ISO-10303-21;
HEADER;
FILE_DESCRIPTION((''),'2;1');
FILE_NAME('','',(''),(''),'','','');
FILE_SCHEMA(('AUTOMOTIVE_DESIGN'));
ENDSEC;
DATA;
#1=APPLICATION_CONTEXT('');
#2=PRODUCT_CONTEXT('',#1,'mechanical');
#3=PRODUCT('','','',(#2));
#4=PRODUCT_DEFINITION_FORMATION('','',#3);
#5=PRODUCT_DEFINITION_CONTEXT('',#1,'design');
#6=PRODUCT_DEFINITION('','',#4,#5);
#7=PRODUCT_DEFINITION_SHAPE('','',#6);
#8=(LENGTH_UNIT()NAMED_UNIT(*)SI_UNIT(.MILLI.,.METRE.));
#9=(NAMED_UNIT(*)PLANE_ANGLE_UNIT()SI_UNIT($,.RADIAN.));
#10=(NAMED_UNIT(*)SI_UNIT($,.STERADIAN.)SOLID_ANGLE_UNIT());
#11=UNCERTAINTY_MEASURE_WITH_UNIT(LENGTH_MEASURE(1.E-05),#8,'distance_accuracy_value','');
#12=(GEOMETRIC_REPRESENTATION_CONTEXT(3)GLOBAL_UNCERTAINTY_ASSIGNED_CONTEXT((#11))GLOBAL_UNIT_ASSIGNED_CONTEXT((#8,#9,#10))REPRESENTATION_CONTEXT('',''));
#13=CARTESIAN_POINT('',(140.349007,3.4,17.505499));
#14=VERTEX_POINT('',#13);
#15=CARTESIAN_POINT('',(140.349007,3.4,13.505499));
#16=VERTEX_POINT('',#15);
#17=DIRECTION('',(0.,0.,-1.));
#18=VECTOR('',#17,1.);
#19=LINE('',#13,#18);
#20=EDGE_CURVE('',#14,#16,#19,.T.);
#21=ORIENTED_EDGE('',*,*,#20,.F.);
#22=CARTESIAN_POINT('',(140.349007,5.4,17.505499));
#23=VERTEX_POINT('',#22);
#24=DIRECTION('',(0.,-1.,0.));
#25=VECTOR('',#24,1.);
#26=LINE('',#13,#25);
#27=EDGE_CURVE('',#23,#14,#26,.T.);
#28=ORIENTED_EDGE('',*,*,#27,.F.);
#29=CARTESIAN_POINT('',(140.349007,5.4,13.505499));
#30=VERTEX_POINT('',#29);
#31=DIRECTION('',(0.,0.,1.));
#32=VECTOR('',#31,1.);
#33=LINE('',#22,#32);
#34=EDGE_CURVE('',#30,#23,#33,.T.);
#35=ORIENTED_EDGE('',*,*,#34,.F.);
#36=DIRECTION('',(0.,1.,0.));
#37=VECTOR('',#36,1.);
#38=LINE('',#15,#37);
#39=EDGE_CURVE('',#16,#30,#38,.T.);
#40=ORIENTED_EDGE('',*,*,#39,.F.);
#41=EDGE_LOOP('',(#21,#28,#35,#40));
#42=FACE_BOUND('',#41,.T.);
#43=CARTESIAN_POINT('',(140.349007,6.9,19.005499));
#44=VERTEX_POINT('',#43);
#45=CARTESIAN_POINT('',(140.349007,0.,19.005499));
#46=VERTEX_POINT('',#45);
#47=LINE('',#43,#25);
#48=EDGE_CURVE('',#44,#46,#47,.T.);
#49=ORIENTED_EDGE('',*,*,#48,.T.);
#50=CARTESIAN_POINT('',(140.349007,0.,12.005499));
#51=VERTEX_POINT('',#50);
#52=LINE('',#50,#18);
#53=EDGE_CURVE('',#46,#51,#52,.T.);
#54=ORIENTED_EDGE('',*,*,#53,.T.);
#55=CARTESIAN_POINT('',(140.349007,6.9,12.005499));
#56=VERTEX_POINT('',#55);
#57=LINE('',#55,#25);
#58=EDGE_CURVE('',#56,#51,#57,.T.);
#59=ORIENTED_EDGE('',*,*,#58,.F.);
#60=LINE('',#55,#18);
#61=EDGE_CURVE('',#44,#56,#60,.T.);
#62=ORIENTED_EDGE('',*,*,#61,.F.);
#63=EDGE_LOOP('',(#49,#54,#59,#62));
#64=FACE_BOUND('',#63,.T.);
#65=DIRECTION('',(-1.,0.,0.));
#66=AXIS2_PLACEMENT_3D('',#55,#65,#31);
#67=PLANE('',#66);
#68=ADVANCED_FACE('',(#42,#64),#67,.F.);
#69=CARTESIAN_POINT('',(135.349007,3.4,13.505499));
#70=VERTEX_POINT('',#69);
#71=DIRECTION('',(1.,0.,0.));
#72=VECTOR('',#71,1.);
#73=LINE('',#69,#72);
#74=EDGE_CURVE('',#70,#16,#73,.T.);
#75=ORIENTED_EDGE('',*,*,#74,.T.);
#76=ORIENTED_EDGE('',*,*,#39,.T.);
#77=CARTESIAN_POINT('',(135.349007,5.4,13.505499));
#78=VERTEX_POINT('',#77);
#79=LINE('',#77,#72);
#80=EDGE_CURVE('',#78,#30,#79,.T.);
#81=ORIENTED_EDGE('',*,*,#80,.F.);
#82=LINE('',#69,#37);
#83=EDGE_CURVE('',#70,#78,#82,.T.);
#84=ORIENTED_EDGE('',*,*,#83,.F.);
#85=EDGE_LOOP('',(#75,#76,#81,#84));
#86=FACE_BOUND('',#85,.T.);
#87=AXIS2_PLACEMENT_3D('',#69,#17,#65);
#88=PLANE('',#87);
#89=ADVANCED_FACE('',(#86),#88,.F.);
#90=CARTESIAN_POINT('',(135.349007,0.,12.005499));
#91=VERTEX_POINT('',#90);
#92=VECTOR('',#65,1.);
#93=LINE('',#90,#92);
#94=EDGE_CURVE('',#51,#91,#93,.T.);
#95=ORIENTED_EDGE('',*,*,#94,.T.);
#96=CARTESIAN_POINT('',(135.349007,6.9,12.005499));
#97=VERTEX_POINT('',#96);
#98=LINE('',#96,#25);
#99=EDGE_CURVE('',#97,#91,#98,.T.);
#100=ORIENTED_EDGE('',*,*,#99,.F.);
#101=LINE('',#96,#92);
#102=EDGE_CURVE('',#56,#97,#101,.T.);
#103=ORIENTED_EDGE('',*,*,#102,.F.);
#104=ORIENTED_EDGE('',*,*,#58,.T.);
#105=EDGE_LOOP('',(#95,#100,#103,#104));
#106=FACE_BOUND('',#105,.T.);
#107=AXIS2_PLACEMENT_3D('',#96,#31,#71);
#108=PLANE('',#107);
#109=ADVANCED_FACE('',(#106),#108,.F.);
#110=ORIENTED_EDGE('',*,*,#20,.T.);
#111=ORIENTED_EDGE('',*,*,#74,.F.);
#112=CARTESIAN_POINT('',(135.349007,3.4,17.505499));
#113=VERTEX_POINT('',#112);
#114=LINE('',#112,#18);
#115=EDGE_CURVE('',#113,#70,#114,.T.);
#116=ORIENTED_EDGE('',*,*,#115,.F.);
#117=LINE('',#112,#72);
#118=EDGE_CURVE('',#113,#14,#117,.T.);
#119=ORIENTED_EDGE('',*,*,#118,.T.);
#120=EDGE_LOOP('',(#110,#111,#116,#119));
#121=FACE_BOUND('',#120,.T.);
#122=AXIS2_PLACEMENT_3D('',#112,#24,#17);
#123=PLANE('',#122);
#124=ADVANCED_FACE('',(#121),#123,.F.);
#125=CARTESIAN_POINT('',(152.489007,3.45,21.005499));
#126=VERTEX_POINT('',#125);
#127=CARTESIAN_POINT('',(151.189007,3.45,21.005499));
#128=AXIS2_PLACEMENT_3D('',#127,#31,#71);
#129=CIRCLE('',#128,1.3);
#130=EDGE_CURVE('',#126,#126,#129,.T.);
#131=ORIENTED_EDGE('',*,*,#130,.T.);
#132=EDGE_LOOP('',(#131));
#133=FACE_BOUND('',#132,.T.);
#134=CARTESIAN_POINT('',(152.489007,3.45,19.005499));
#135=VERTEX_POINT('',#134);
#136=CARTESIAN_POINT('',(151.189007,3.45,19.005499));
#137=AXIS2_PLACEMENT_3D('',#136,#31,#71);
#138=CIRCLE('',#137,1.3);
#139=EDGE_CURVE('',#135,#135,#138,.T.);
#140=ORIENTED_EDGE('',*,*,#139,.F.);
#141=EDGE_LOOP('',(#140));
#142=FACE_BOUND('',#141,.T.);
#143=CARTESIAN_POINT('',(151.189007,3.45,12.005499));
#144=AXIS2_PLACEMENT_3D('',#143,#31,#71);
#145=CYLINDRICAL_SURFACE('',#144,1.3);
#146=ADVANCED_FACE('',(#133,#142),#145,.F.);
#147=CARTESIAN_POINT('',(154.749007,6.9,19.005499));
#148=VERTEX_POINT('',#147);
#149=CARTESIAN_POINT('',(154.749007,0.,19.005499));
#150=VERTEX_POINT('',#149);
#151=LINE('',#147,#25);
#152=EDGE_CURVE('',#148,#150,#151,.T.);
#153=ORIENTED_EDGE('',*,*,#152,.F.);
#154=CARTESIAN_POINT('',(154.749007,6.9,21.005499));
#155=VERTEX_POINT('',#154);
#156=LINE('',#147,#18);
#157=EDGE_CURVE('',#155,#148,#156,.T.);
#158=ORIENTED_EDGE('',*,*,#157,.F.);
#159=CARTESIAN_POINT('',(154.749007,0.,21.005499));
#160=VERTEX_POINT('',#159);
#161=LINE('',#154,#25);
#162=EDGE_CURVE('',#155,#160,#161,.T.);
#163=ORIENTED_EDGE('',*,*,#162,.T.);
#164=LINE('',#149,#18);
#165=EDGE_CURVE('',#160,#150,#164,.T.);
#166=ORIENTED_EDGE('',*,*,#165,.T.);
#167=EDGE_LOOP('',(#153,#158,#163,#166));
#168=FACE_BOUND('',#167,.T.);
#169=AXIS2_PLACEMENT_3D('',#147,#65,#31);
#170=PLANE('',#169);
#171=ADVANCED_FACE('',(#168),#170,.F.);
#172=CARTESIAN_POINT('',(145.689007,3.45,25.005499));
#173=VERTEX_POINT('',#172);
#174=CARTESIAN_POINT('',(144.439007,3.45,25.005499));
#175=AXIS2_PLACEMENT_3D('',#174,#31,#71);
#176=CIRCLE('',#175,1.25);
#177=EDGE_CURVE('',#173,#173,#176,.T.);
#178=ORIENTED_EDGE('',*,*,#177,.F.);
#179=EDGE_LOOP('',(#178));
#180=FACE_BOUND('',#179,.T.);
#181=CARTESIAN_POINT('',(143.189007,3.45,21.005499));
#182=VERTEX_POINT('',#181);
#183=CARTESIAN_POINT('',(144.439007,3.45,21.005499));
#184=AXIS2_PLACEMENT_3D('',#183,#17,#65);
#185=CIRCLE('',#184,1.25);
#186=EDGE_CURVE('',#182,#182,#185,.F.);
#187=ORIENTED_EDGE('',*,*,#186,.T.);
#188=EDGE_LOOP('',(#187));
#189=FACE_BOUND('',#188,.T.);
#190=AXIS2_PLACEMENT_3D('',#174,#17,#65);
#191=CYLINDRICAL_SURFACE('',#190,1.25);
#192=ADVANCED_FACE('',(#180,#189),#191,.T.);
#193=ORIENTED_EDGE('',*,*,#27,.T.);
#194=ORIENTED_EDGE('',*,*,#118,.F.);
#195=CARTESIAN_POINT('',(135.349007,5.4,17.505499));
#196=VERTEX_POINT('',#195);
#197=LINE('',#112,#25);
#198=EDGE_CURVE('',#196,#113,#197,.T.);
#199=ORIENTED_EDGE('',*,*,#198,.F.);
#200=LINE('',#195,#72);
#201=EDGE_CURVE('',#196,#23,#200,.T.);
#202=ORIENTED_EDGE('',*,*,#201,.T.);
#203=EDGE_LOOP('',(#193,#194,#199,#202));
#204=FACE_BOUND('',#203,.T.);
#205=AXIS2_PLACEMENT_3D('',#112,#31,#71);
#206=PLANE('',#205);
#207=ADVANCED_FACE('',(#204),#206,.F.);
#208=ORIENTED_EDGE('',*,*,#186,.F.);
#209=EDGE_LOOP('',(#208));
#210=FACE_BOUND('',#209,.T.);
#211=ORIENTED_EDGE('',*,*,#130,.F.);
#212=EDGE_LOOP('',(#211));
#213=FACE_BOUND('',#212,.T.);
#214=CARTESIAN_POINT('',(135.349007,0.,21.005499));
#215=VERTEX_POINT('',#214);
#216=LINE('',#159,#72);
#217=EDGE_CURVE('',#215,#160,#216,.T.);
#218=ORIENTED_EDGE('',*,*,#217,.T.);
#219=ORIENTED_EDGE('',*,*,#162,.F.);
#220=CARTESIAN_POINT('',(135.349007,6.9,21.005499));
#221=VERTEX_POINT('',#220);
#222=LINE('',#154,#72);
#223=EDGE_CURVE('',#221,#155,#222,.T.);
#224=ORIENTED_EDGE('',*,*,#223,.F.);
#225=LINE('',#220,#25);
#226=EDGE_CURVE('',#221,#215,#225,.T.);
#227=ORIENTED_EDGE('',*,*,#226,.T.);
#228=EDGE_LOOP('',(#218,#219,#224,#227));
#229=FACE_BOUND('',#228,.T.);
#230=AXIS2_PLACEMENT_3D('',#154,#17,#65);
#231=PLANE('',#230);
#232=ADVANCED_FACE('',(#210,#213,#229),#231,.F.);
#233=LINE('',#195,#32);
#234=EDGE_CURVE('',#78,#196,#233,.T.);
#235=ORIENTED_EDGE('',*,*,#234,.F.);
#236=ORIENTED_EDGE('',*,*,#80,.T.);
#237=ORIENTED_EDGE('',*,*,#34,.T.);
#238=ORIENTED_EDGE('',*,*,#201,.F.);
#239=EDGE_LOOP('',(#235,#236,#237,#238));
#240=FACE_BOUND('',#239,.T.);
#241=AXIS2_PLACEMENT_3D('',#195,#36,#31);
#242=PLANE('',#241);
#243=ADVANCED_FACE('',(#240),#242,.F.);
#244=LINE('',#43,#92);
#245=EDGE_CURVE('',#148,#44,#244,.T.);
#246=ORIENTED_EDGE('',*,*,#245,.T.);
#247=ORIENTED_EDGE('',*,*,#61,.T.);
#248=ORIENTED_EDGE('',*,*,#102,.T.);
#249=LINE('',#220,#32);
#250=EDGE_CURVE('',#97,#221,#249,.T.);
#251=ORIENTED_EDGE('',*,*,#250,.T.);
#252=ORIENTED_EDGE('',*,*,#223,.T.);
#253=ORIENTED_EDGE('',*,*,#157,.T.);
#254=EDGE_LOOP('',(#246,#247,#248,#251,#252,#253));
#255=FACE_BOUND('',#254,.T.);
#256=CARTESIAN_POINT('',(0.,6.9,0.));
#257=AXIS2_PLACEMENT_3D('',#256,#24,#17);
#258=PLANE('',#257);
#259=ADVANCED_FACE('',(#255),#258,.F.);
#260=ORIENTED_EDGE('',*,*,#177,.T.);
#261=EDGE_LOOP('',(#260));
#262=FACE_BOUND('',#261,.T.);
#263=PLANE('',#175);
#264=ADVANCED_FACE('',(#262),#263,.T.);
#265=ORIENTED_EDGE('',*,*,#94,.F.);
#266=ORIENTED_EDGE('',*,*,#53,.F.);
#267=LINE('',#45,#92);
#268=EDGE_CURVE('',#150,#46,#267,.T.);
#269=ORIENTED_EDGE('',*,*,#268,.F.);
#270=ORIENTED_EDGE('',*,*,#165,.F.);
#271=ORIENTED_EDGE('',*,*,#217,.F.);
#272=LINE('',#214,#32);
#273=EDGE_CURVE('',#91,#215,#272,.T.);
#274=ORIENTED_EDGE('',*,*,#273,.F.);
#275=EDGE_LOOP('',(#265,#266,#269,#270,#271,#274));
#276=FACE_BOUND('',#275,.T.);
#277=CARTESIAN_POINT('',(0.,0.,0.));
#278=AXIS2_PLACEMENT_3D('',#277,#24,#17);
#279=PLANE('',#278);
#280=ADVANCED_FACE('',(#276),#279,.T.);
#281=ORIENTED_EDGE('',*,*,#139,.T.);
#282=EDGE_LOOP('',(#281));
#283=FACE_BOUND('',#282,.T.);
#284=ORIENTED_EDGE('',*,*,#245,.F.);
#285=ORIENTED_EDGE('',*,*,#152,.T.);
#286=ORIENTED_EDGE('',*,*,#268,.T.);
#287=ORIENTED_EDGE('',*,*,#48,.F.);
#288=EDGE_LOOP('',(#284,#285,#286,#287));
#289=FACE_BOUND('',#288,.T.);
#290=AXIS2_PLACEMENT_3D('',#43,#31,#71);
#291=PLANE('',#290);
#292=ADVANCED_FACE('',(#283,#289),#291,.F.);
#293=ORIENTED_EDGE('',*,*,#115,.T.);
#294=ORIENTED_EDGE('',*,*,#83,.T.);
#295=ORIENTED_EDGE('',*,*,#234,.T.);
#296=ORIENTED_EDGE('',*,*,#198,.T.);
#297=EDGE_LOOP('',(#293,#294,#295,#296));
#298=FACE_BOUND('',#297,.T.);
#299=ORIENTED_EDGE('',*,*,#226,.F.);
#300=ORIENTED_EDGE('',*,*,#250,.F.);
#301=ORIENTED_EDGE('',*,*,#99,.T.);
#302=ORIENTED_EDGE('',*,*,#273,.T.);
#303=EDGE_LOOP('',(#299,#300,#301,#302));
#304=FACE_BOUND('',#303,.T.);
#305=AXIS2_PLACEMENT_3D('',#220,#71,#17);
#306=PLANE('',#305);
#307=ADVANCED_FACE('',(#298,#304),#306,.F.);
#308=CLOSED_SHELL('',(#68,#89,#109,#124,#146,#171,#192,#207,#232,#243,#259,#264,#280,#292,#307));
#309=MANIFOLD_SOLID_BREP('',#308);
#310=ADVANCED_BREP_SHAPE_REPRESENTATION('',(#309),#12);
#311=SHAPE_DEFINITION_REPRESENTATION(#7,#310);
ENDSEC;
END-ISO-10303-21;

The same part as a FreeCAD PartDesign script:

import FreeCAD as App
import Part
import Sketcher
Q = App.Units.Quantity


def add_polygon(sketch, points):
    """Adds a closed chain of lines whose ends are joined by coincident constraints."""
    first, n = sketch.GeometryCount, len(points)
    for a, b in zip(points, points[1:] + points[:1]):
        sketch.addGeometry(Part.LineSegment(App.Vector(*a, 0), App.Vector(*b, 0)), False)
    for i in range(n):
        sketch.addConstraint(Sketcher.Constraint("Coincident", first + i, 2, first + (i + 1) % n, 1))

doc = App.newDocument("Part")
body = doc.addObject("PartDesign::Body", "Body")

# Sketch on XZ plane
sketch1 = body.newObject("Sketcher::SketchObject", "Sketch")
sketch1.AttachmentSupport = (doc.getObject("XZ_Plane"), [""])
sketch1.MapMode = "FlatFace"
add_polygon(sketch1, [(135.3, 21), (154.7, 21), (154.7, 19), (140.3, 19), (140.3, 12), (135.3, 12)])  # lines 0-5
sketch1.addConstraint([
    Sketcher.Constraint("Horizontal", 0),
    Sketcher.Constraint("Vertical", 1),
    Sketcher.Constraint("Horizontal", 2),
    Sketcher.Constraint("Vertical", 3),
    Sketcher.Constraint("Horizontal", 4),
    Sketcher.Constraint("Vertical", 5),
    Sketcher.Constraint("DistanceX", 4, 2, 4, 1, Q("5 mm")),
    Sketcher.Constraint("DistanceY", 1, 2, 1, 1, Q("2 mm")),
    Sketcher.Constraint("DistanceY", 3, 2, 3, 1, Q("7 mm")),
    Sketcher.Constraint("DistanceX", 0, 1, 0, 2, Q("19.4 mm")),
    Sketcher.Constraint("DistanceY", -1, 1, 0, 2, Q("21.005499 mm")),
    Sketcher.Constraint("DistanceX", -1, 1, 0, 2, Q("154.749007 mm")),
])
pad1 = body.newObject("PartDesign::Pad", "Pad")
pad1.Profile = sketch1
pad1.Length = 6.9
pad1.Reversed = True

# Sketch on XY plane
sketch2 = body.newObject("Sketcher::SketchObject", "Sketch001")
sketch2.AttachmentSupport = (doc.getObject("XY_Plane"), [""])
sketch2.MapMode = "FlatFace"
sketch2.AttachmentOffset = App.Placement(App.Vector(0, 0, 21.005499), App.Rotation())
sketch2.addGeometry(Part.Circle(App.Vector(151.2, 3.5, 0), App.Vector(0, 0, 1), 1.3), False)
sketch2.addConstraint([
    Sketcher.Constraint("Diameter", 0, Q("2.6 mm")),
    Sketcher.Constraint("DistanceY", -1, 1, 0, 3, Q("3.45 mm")),
    Sketcher.Constraint("DistanceX", -1, 1, 0, 3, Q("151.189007 mm")),
])
pocket1 = body.newObject("PartDesign::Pocket", "Pocket")
pocket1.Profile = sketch2
pocket1.Type = "ThroughAll"

# Sketch on XY plane
sketch3 = body.newObject("Sketcher::SketchObject", "Sketch002")
sketch3.AttachmentSupport = (doc.getObject("XY_Plane"), [""])
sketch3.MapMode = "FlatFace"
sketch3.AttachmentOffset = App.Placement(App.Vector(0, 0, 21.005499), App.Rotation())
sketch3.addGeometry(Part.Circle(App.Vector(144.4, 3.5, 0), App.Vector(0, 0, 1), 1.2), False)
sketch3.addConstraint([
    Sketcher.Constraint("Diameter", 0, Q("2.5 mm")),
    Sketcher.Constraint("DistanceY", -1, 1, 0, 3, Q("3.45 mm")),
    Sketcher.Constraint("DistanceX", -1, 1, 0, 3, Q("144.439007 mm")),
])
pad2 = body.newObject("PartDesign::Pad", "Pad001")
pad2.Profile = sketch3
pad2.Length = 4

# Sketch on YZ plane
sketch4 = body.newObject("Sketcher::SketchObject", "Sketch003")
sketch4.AttachmentSupport = (doc.getObject("YZ_Plane"), [""])
sketch4.MapMode = "FlatFace"
sketch4.AttachmentOffset = App.Placement(App.Vector(0, 0, 140.349007), App.Rotation())
add_polygon(sketch4, [(5.4, 17.5), (3.4, 17.5), (3.4, 13.5), (5.4, 13.5)])  # lines 0-3
sketch4.addConstraint([
    Sketcher.Constraint("Horizontal", 0),
    Sketcher.Constraint("Vertical", 1),
    Sketcher.Constraint("Horizontal", 2),
    Sketcher.Constraint("Vertical", 3),
    Sketcher.Constraint("DistanceX", 0, 2, 0, 1, Q("2 mm")),
    Sketcher.Constraint("DistanceY", 1, 2, 1, 1, Q("4 mm")),
    Sketcher.Constraint("DistanceX", -1, 1, 0, 2, Q("3.4 mm")),
    Sketcher.Constraint("DistanceY", -1, 1, 0, 2, Q("17.505499 mm")),
])
pocket2 = body.newObject("PartDesign::Pocket", "Pocket001")
pocket2.Profile = sketch4
pocket2.Type = "ThroughAll"

doc.recompute()
